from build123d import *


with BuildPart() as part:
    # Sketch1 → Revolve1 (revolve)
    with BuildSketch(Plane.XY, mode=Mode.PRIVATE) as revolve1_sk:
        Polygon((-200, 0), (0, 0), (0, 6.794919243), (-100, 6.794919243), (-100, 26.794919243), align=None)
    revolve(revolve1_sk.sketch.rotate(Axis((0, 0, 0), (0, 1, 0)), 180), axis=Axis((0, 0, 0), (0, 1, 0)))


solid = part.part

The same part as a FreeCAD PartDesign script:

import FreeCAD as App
import Part
import Sketcher

V = App.Vector
Q = App.Units.Quantity

doc = App.newDocument("Part")
body = doc.addObject("PartDesign::Body", "Body")

# Sketch on XY plane
sketch1 = doc.addObject("Sketcher::SketchObject", "Sketch")
body.addObject(sketch1)
sketch1.AttachmentSupport = (doc.XY_Plane, [""])
sketch1.MapMode = "FlatFace"
sketch1.addGeometry(Part.LineSegment(V(-200, 0, 0), V(0, 0, 0)), False)
sketch1.addGeometry(Part.LineSegment(V(0, 0, 0), V(0, 6.794919, 0)), False)
sketch1.addGeometry(Part.LineSegment(V(0, 6.794919, 0), V(-100, 6.794919, 0)), False)
sketch1.addGeometry(Part.LineSegment(V(-100, 6.794919, 0), V(-100, 26.794919, 0)), False)
sketch1.addGeometry(Part.LineSegment(V(-100, 26.794919, 0), V(-200, 0, 0)), False)
sketch1.addConstraint(Sketcher.Constraint("Coincident", 0, 2, 1, 1))
sketch1.addConstraint(Sketcher.Constraint("Coincident", 1, 2, 2, 1))
sketch1.addConstraint(Sketcher.Constraint("Coincident", 2, 2, 3, 1))
sketch1.addConstraint(Sketcher.Constraint("Coincident", 3, 2, 4, 1))
sketch1.addConstraint(Sketcher.Constraint("Coincident", 4, 2, 0, 1))
sketch1.addConstraint(Sketcher.Constraint("Horizontal", 0))
sketch1.addConstraint(Sketcher.Constraint("Vertical", 1))
sketch1.addConstraint(Sketcher.Constraint("Horizontal", 2))
sketch1.addConstraint(Sketcher.Constraint("Vertical", 3))
sketch1.addConstraint(Sketcher.Constraint("Coincident", 0, 2, -1, 1))
sketch1.addConstraint(Sketcher.Constraint("DistanceX", 0, 1, 0, 2, Q("200 mm")))
sketch1.addConstraint(Sketcher.Constraint("DistanceX", 2, 2, 2, 1, Q("100 mm")))
sketch1.addConstraint(Sketcher.Constraint("DistanceY", 3, 1, 3, 2, Q("20 mm")))
sketch1.addConstraint(Sketcher.Constraint("Angle", 4, Q("-165 deg")))
revolution = doc.addObject("PartDesign::Revolution", "Revolution")
body.addObject(revolution)
revolution.Profile = sketch1
revolution.ReferenceAxis = (sketch1, ["V_Axis"])
revolution.Angle = 360

doc.recompute()
